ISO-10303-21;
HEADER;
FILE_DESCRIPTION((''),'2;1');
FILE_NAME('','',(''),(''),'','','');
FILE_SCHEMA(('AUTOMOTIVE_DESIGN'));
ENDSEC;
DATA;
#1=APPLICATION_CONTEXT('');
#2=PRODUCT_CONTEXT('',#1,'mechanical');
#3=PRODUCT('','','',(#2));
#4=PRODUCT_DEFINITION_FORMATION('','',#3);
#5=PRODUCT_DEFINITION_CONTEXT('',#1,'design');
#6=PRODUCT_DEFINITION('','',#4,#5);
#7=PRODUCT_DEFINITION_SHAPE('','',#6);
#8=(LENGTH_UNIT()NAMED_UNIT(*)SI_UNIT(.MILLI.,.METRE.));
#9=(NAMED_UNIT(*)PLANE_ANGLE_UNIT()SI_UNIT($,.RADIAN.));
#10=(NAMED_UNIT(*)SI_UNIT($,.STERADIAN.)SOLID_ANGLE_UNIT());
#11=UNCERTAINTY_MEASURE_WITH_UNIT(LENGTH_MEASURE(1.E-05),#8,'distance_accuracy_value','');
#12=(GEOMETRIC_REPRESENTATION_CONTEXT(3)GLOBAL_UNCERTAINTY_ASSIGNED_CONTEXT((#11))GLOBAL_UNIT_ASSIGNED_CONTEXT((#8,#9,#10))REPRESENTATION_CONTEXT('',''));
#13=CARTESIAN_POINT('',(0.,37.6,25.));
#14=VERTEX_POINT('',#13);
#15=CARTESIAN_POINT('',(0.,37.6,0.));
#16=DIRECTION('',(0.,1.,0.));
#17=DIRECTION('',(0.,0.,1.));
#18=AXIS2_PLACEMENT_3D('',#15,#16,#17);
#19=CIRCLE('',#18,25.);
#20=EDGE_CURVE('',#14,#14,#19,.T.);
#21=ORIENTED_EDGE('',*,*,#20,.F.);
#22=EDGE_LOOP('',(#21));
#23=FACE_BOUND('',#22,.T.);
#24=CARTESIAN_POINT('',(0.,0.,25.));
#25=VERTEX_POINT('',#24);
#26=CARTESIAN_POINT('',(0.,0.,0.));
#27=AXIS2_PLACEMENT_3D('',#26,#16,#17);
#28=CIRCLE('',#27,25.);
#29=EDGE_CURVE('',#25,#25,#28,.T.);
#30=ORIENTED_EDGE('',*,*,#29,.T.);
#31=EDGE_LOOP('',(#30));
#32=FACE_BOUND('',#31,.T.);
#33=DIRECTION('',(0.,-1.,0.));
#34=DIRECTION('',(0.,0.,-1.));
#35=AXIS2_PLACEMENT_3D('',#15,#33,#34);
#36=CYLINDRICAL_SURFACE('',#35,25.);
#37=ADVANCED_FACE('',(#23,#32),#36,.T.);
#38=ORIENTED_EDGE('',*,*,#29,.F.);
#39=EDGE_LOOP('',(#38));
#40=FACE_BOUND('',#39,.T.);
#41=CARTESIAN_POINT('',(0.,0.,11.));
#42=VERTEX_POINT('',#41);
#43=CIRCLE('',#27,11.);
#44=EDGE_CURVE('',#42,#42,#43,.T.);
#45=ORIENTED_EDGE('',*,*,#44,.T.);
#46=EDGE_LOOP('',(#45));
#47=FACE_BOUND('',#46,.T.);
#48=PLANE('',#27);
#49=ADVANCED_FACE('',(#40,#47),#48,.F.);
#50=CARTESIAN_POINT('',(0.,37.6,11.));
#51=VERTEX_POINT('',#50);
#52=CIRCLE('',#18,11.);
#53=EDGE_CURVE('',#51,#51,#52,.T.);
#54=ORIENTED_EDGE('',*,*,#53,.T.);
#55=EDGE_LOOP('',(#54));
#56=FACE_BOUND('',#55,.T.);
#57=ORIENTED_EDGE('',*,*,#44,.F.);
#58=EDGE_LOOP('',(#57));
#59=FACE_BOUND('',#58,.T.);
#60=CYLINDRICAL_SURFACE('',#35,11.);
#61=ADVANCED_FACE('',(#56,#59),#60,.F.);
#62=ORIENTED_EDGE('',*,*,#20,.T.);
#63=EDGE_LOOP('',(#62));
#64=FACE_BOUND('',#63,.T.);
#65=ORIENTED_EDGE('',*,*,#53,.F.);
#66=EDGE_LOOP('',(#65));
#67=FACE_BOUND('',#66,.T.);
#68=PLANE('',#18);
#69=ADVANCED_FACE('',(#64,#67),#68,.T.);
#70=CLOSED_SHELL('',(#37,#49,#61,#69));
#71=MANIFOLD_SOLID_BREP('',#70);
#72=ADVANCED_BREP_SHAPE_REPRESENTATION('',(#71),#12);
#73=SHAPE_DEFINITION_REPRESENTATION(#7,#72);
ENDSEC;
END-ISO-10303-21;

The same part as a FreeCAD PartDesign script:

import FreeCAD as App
import Part
import Sketcher

V = App.Vector

doc = App.newDocument("Part")
body = doc.addObject("PartDesign::Body", "Body")

# Sketch on XZ plane
sketch1 = body.newObject("Sketcher::SketchObject", "Sketch")
sketch1.AttachmentSupport = (doc.getObject("XZ_Plane"), [""])
sketch1.MapMode = "FlatFace"
sketch1.addGeometry(Part.Circle(V(0, 0, 0), V(0, 0, 1), 25), False)
sketch1.addGeometry(Part.Circle(V(0, 0, 0), V(0, 0, 1), 11), False)
sketch1.addConstraint(Sketcher.Constraint("Coincident", 0, 3, -1, 1))
sketch1.addConstraint(Sketcher.Constraint("Coincident", 1, 3, -1, 1))
sketch1.addConstraint(Sketcher.Constraint("Diameter", 0, 50.0))
sketch1.addConstraint(Sketcher.Constraint("Diameter", 1, 22.0))
pad1 = body.newObject("PartDesign::Pad", "Pad")
pad1.Profile = sketch1
pad1.Length = 37.6
pad1.Reversed = True

doc.recompute()
